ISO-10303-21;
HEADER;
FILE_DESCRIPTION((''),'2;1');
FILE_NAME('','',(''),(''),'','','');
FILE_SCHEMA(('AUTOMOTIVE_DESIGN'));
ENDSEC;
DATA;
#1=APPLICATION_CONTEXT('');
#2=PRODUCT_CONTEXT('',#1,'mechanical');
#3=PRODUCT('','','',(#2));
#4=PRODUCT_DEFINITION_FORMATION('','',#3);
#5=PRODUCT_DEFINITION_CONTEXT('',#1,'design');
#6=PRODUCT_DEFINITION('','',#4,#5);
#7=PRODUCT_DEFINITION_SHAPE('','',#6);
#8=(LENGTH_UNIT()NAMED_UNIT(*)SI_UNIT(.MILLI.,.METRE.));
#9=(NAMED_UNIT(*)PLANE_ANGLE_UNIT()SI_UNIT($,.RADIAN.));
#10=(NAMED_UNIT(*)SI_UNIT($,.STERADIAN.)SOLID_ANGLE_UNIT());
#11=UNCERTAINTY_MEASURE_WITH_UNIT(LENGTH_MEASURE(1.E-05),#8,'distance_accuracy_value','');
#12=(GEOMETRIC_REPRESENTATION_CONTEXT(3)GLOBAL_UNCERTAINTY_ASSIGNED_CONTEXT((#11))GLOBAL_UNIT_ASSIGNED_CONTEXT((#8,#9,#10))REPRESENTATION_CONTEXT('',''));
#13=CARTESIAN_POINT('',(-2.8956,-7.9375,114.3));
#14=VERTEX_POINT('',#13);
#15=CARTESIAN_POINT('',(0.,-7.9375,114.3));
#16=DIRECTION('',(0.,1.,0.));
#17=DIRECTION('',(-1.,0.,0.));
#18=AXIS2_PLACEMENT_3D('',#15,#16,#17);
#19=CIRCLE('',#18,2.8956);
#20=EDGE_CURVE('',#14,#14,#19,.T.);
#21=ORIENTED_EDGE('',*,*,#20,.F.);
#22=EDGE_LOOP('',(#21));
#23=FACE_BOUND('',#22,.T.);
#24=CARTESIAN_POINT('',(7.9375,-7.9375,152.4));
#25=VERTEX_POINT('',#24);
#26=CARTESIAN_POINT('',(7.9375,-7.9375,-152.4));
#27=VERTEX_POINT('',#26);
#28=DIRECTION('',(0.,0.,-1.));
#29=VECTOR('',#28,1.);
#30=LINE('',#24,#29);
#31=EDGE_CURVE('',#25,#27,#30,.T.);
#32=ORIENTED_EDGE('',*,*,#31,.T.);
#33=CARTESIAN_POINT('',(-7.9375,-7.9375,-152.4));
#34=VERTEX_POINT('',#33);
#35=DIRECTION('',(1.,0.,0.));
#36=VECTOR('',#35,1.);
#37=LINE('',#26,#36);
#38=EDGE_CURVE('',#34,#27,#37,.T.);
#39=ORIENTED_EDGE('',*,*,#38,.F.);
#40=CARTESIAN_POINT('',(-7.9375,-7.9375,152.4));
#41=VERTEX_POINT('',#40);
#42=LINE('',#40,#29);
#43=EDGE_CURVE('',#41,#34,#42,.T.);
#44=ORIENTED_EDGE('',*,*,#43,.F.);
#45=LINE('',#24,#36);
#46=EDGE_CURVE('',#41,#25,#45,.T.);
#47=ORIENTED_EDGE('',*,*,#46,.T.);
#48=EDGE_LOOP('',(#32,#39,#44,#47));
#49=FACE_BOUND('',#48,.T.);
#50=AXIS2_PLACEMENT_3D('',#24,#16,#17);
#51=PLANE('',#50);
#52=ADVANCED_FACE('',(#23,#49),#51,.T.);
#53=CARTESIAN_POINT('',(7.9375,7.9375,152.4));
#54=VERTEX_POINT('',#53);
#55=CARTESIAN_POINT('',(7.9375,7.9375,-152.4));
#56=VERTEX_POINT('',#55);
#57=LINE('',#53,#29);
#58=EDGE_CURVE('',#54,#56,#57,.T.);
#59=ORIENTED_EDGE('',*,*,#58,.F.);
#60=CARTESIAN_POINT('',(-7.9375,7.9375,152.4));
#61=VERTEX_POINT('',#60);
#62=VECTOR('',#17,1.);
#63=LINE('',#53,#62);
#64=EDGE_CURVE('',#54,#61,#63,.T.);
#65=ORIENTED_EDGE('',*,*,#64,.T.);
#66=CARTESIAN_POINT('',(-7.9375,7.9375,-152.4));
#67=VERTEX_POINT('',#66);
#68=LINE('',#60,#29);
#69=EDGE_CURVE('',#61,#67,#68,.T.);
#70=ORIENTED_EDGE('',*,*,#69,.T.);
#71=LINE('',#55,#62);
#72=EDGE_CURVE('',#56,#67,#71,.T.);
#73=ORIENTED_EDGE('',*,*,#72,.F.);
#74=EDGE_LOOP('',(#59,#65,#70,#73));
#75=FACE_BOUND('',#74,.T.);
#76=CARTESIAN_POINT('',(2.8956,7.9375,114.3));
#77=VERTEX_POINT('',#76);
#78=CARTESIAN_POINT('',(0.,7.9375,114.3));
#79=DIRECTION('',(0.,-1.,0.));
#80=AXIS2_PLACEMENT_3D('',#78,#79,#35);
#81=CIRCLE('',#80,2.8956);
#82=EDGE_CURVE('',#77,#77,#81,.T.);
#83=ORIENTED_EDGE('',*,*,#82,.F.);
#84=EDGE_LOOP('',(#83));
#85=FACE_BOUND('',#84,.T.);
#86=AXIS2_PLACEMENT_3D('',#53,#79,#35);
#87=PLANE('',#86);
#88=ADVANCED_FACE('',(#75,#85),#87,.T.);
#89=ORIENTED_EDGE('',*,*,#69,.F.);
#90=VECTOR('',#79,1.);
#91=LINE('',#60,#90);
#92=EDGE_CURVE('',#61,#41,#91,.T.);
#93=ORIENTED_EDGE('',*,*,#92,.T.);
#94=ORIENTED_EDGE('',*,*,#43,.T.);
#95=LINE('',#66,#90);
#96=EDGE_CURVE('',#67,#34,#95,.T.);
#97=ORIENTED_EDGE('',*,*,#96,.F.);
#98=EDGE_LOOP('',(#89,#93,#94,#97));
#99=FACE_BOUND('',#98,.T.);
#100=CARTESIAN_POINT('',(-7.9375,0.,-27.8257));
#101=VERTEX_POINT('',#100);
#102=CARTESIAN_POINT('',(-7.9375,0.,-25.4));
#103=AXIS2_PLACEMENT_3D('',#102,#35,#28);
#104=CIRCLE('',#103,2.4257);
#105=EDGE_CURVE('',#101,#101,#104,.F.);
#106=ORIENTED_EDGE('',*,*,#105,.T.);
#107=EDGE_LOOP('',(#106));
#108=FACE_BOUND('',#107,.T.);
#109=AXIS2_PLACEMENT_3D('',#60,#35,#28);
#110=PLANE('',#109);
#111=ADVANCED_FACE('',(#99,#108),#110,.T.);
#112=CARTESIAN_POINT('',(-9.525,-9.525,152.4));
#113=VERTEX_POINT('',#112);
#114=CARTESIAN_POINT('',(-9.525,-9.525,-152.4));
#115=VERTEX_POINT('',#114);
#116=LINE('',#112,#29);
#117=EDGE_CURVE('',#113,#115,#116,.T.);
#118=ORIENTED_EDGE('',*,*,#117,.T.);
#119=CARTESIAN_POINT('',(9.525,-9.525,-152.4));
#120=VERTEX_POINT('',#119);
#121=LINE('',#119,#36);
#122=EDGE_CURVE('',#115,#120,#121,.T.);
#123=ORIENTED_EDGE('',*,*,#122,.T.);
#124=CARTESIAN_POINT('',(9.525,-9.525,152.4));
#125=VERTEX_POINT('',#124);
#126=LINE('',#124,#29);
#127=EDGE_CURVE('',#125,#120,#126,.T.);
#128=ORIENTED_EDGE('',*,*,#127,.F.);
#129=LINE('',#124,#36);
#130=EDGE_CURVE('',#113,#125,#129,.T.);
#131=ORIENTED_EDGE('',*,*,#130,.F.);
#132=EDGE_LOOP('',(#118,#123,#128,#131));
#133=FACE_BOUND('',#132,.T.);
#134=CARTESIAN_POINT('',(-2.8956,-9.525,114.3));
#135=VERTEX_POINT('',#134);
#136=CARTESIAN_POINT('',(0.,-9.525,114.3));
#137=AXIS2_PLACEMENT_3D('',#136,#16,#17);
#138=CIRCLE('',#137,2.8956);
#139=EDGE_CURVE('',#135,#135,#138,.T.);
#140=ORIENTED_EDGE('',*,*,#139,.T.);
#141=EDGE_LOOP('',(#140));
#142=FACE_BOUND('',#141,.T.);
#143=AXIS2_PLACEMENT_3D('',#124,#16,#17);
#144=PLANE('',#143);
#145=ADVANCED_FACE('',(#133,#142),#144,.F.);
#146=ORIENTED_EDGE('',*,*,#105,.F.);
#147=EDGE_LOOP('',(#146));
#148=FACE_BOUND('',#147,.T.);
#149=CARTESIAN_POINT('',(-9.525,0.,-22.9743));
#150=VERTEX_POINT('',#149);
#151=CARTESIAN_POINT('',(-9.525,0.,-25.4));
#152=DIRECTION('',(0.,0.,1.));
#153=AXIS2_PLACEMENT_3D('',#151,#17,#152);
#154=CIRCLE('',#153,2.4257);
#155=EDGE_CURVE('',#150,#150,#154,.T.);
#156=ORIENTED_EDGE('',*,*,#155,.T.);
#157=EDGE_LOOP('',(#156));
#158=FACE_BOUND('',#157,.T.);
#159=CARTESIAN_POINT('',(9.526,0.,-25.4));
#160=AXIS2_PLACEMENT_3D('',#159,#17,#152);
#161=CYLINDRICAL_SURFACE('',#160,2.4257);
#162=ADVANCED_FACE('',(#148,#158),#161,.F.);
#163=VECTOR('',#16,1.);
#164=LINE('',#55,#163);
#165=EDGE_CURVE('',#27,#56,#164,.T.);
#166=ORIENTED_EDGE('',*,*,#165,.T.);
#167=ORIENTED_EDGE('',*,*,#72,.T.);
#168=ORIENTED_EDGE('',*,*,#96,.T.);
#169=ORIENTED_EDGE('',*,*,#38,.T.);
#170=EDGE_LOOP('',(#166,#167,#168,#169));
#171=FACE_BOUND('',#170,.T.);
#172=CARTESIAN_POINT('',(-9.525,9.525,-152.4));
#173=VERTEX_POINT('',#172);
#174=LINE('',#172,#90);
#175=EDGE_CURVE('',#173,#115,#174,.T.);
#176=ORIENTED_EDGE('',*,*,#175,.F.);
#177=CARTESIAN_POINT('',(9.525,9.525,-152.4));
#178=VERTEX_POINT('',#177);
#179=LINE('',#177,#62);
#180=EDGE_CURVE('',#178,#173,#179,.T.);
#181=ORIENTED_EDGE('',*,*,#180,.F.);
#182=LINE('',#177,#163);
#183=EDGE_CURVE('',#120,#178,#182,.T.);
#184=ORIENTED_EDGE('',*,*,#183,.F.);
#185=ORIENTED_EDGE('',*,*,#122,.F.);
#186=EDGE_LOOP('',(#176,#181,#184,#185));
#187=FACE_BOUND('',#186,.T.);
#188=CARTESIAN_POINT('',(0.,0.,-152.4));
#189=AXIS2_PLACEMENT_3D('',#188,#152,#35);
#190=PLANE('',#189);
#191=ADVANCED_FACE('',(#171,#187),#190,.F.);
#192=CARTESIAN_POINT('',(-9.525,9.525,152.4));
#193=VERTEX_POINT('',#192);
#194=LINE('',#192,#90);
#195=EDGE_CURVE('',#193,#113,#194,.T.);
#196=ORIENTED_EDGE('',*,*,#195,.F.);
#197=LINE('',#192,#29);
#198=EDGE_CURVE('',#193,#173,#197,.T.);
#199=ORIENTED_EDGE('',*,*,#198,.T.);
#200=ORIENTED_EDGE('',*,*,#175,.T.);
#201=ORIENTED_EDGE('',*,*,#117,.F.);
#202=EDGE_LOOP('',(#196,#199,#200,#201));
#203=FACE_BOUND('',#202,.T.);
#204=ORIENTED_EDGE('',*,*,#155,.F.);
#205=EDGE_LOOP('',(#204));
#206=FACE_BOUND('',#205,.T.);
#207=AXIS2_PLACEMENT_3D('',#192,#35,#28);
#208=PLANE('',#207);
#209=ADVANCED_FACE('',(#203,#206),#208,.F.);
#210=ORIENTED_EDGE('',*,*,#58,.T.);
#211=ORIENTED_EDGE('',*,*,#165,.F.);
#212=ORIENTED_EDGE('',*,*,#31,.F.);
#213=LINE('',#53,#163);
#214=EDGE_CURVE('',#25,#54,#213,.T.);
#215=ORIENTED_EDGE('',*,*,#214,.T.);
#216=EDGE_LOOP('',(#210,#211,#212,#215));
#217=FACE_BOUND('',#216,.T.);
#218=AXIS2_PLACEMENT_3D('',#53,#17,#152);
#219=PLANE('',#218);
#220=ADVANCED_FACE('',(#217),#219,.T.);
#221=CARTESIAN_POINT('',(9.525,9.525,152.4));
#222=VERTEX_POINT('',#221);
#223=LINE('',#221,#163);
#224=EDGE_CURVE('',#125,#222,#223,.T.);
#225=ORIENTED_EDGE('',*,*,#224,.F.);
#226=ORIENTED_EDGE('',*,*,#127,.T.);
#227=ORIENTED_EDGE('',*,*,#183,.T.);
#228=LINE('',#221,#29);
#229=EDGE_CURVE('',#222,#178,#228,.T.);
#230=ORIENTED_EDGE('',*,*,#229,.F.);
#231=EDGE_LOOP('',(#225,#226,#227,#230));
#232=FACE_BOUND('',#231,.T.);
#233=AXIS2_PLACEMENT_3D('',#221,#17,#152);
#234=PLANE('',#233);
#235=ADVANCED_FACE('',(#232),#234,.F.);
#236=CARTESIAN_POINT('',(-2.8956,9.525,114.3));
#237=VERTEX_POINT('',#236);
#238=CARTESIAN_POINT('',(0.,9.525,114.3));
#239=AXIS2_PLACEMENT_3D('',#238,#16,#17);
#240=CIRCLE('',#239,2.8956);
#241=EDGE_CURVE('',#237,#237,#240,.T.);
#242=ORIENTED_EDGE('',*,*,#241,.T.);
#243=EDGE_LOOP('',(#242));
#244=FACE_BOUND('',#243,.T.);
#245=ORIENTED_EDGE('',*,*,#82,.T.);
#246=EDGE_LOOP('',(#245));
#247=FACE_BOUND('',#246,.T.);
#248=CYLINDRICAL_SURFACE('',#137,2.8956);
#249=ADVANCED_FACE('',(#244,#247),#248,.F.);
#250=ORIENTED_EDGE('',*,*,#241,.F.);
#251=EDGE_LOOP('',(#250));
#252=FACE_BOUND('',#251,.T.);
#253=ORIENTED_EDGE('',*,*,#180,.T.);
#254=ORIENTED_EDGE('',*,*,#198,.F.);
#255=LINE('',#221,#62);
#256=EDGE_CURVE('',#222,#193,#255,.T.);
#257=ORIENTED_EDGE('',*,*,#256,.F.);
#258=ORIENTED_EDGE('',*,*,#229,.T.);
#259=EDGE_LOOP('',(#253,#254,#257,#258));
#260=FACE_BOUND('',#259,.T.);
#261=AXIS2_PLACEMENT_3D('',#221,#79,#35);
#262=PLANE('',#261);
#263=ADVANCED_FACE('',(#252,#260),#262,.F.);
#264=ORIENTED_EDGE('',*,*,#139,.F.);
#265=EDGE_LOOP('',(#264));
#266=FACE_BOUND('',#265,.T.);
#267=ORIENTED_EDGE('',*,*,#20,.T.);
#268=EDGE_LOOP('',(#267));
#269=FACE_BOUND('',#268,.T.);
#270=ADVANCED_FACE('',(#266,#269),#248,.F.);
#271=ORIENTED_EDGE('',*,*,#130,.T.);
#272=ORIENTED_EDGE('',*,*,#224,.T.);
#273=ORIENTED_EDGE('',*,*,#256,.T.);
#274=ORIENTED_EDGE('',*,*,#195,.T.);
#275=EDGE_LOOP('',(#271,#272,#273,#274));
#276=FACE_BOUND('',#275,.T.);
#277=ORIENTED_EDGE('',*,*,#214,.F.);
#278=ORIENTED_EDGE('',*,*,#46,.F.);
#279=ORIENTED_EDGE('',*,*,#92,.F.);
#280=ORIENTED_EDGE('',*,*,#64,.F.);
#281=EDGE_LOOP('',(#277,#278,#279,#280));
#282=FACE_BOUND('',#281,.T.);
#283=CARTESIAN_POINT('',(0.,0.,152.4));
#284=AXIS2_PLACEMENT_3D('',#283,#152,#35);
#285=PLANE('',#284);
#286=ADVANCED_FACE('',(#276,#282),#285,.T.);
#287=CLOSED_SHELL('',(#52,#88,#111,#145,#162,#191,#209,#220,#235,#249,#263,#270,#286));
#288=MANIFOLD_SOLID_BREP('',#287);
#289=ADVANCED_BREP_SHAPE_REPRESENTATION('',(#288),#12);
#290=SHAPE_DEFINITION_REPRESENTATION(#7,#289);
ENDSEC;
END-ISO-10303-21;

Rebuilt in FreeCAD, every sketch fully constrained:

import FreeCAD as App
import Part
import Sketcher
from FreeCAD import Vector
Q = App.Units.Quantity

doc = App.newDocument("Part")
params = doc.addObject("Spreadsheet::Sheet", "Params")
for row, (alias, value) in enumerate([
    ("sketch1_width", "0.75 in"),
    ("sketch1_width2", "0.625 in"),
    ("pad1_length", "12 in"),
    ("sketch2_diameter", "0.228 in"),
    ("sketch3_diameter", "0.191 in"),
], start=1):
    params.set(f"A{row}", alias)
    params.set(f"B{row}", "=" + value)
    params.setAlias(f"B{row}", alias)

body = doc.addObject("PartDesign::Body", "Body")

sketch1 = doc.addObject("Sketcher::SketchObject", "Sketch")
body.addObject(sketch1)
sketch1.AttachmentSupport = (doc.XY_Plane, [""])
sketch1.MapMode = "FlatFace"
sketch1.addGeometry([
    Part.LineSegment(Vector(10, 10, 0), Vector(-10, 10, 0)),
    Part.LineSegment(Vector(-10, 10, 0), Vector(-10, -10, 0)),
    Part.LineSegment(Vector(-10, -10, 0), Vector(10, -10, 0)),
    Part.LineSegment(Vector(10, -10, 0), Vector(10, 10, 0)),
    Part.LineSegment(Vector(-8, -8, 0), Vector(-8, 8, 0)),
    Part.LineSegment(Vector(-8, 8, 0), Vector(8, 8, 0)),
    Part.LineSegment(Vector(8, 8, 0), Vector(8, -8, 0)),
    Part.LineSegment(Vector(8, -8, 0), Vector(-8, -8, 0)),
], False)
sketch1.addConstraint([
    Sketcher.Constraint("Coincident", 0, 2, 1, 1),
    Sketcher.Constraint("Coincident", 1, 2, 2, 1),
    Sketcher.Constraint("Coincident", 2, 2, 3, 1),
    Sketcher.Constraint("Coincident", 3, 2, 0, 1),
    Sketcher.Constraint("Coincident", 4, 2, 5, 1),
    Sketcher.Constraint("Coincident", 5, 2, 6, 1),
    Sketcher.Constraint("Coincident", 6, 2, 7, 1),
    Sketcher.Constraint("Coincident", 7, 2, 4, 1),
    Sketcher.Constraint("Horizontal", 0),
    Sketcher.Constraint("Vertical", 1),
    Sketcher.Constraint("Horizontal", 2),
    Sketcher.Constraint("Vertical", 3),
    Sketcher.Constraint("Vertical", 4),
    Sketcher.Constraint("Horizontal", 5),
    Sketcher.Constraint("Vertical", 6),
    Sketcher.Constraint("Horizontal", 7),
    Sketcher.Constraint("Symmetric", 0, 2, 2, 2, -1, 1),
    Sketcher.Constraint("Symmetric", 4, 2, 6, 2, -1, 1),
    Sketcher.Constraint("Equal", 2, 1),
    Sketcher.Constraint("Equal", 7, 4),
    Sketcher.Constraint("DistanceX", 0, 2, 0, 1, Q("0.75 in")),
    Sketcher.Constraint("DistanceX", 5, 1, 5, 2, Q("0.625 in")),
])
sketch1.setExpression("Constraints[20]", "Params.sketch1_width")
sketch1.setExpression("Constraints[21]", "Params.sketch1_width2")
pad1 = doc.addObject("PartDesign::Pad", "Pad")
body.addObject(pad1)
pad1.Profile = sketch1
pad1.setExpression("Length", "Params.pad1_length")
pad1.Midplane = True

sketch2 = doc.addObject("Sketcher::SketchObject", "Sketch001")
body.addObject(sketch2)
sketch2.AttachmentSupport = (doc.XZ_Plane, [""])
sketch2.MapMode = "FlatFace"
sketch2.AttachmentOffset = App.Placement(Vector(0, 0, -0.375 * 25.4), App.Rotation())
sketch2.addGeometry(Part.Circle(Vector(0, 114.3, 0), Vector(0, 0, 1), 2.9), False)
sketch2.addConstraint([
    Sketcher.Constraint("PointOnObject", 0, 3, -2),
    Sketcher.Constraint("Diameter", 0, Q("0.228 in")),
    Sketcher.Constraint("DistanceY", -1, 1, 0, 3, Q("4.5 in")),
])
sketch2.setExpression("Constraints[1]", "Params.sketch2_diameter")
pocket1 = doc.addObject("PartDesign::Pocket", "Pocket")
body.addObject(pocket1)
pocket1.Profile = sketch2
pocket1.Type = "ThroughAll"
pocket1.Reversed = True

sketch3 = doc.addObject("Sketcher::SketchObject", "Sketch002")
body.addObject(sketch3)
sketch3.AttachmentSupport = (doc.YZ_Plane, [""])
sketch3.MapMode = "FlatFace"
sketch3.AttachmentOffset = App.Placement(Vector(0, 0, -0.375 * 25.4), App.Rotation())
sketch3.addGeometry(Part.Circle(Vector(0, -25.4, 0), Vector(0, 0, 1), 2.4), False)
sketch3.addConstraint([
    Sketcher.Constraint("PointOnObject", 0, 3, -2),
    Sketcher.Constraint("Diameter", 0, Q("0.191 in")),
    Sketcher.Constraint("DistanceY", 0, 3, -1, 1, Q("1 in")),
])
sketch3.setExpression("Constraints[1]", "Params.sketch3_diameter")
pocket2 = doc.addObject("PartDesign::Pocket", "Pocket001")
body.addObject(pocket2)
pocket2.Profile = sketch3
pocket2.Type = "UpToFirst"
pocket2.Reversed = True

doc.recompute()
